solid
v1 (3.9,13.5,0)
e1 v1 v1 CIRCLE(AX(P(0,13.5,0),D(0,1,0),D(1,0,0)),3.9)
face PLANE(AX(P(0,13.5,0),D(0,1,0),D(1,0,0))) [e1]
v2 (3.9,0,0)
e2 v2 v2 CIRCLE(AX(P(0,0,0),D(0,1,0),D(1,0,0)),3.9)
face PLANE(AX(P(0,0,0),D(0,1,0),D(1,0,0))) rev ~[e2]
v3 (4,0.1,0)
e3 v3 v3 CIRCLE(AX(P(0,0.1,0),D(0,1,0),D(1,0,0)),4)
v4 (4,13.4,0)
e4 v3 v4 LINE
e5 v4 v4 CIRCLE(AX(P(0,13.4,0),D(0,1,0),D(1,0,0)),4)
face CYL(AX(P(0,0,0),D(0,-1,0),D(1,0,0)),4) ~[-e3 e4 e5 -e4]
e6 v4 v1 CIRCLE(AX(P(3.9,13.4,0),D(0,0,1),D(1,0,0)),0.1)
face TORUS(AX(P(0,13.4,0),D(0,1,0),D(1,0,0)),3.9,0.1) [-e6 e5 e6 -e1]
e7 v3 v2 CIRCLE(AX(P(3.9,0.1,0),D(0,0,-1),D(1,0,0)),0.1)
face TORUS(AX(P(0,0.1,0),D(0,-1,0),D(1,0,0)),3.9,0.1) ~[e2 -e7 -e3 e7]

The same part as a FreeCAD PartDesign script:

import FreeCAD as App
import Part
import Sketcher


def edges_at(feature, points):
    """Names of the edges that pass closest to the given points."""
    edges = feature.Shape.Edges
    near = lambda p: min(range(len(edges)), key=lambda i: edges[i].distToShape(Part.Vertex(*p))[0])
    return sorted({f"Edge{near(p) + 1}" for p in points})

doc = App.newDocument("Part")
body = doc.addObject("PartDesign::Body", "Body")

sketch1 = body.newObject("Sketcher::SketchObject", "Sketch")
sketch1.AttachmentSupport = (doc.getObject("XZ_Plane"), [""])
sketch1.MapMode = "FlatFace"
sketch1.addGeometry(Part.Circle(App.Vector(0, 0, 0), App.Vector(0, 0, 1), 4), False)
sketch1.addConstraint(Sketcher.Constraint("Coincident", 0, 3, -1, 1))
sketch1.addConstraint(Sketcher.Constraint("Diameter", 0, 8.0))
pad1 = body.newObject("PartDesign::Pad", "Pad")
pad1.Profile = sketch1
pad1.Length = 13.5
pad1.Reversed = True
doc.recompute()

fillet = body.newObject("PartDesign::Fillet", "Fillet")
fillet.Base = (pad1, edges_at(pad1, [(-4, 13.5, 0)]))
fillet.Radius = 0.1
doc.recompute()

fillet2 = body.newObject("PartDesign::Fillet", "Fillet001")
fillet2.Base = (fillet, edges_at(fillet, [(-4, 0, 0)]))
fillet2.Radius = 0.1

doc.recompute()
